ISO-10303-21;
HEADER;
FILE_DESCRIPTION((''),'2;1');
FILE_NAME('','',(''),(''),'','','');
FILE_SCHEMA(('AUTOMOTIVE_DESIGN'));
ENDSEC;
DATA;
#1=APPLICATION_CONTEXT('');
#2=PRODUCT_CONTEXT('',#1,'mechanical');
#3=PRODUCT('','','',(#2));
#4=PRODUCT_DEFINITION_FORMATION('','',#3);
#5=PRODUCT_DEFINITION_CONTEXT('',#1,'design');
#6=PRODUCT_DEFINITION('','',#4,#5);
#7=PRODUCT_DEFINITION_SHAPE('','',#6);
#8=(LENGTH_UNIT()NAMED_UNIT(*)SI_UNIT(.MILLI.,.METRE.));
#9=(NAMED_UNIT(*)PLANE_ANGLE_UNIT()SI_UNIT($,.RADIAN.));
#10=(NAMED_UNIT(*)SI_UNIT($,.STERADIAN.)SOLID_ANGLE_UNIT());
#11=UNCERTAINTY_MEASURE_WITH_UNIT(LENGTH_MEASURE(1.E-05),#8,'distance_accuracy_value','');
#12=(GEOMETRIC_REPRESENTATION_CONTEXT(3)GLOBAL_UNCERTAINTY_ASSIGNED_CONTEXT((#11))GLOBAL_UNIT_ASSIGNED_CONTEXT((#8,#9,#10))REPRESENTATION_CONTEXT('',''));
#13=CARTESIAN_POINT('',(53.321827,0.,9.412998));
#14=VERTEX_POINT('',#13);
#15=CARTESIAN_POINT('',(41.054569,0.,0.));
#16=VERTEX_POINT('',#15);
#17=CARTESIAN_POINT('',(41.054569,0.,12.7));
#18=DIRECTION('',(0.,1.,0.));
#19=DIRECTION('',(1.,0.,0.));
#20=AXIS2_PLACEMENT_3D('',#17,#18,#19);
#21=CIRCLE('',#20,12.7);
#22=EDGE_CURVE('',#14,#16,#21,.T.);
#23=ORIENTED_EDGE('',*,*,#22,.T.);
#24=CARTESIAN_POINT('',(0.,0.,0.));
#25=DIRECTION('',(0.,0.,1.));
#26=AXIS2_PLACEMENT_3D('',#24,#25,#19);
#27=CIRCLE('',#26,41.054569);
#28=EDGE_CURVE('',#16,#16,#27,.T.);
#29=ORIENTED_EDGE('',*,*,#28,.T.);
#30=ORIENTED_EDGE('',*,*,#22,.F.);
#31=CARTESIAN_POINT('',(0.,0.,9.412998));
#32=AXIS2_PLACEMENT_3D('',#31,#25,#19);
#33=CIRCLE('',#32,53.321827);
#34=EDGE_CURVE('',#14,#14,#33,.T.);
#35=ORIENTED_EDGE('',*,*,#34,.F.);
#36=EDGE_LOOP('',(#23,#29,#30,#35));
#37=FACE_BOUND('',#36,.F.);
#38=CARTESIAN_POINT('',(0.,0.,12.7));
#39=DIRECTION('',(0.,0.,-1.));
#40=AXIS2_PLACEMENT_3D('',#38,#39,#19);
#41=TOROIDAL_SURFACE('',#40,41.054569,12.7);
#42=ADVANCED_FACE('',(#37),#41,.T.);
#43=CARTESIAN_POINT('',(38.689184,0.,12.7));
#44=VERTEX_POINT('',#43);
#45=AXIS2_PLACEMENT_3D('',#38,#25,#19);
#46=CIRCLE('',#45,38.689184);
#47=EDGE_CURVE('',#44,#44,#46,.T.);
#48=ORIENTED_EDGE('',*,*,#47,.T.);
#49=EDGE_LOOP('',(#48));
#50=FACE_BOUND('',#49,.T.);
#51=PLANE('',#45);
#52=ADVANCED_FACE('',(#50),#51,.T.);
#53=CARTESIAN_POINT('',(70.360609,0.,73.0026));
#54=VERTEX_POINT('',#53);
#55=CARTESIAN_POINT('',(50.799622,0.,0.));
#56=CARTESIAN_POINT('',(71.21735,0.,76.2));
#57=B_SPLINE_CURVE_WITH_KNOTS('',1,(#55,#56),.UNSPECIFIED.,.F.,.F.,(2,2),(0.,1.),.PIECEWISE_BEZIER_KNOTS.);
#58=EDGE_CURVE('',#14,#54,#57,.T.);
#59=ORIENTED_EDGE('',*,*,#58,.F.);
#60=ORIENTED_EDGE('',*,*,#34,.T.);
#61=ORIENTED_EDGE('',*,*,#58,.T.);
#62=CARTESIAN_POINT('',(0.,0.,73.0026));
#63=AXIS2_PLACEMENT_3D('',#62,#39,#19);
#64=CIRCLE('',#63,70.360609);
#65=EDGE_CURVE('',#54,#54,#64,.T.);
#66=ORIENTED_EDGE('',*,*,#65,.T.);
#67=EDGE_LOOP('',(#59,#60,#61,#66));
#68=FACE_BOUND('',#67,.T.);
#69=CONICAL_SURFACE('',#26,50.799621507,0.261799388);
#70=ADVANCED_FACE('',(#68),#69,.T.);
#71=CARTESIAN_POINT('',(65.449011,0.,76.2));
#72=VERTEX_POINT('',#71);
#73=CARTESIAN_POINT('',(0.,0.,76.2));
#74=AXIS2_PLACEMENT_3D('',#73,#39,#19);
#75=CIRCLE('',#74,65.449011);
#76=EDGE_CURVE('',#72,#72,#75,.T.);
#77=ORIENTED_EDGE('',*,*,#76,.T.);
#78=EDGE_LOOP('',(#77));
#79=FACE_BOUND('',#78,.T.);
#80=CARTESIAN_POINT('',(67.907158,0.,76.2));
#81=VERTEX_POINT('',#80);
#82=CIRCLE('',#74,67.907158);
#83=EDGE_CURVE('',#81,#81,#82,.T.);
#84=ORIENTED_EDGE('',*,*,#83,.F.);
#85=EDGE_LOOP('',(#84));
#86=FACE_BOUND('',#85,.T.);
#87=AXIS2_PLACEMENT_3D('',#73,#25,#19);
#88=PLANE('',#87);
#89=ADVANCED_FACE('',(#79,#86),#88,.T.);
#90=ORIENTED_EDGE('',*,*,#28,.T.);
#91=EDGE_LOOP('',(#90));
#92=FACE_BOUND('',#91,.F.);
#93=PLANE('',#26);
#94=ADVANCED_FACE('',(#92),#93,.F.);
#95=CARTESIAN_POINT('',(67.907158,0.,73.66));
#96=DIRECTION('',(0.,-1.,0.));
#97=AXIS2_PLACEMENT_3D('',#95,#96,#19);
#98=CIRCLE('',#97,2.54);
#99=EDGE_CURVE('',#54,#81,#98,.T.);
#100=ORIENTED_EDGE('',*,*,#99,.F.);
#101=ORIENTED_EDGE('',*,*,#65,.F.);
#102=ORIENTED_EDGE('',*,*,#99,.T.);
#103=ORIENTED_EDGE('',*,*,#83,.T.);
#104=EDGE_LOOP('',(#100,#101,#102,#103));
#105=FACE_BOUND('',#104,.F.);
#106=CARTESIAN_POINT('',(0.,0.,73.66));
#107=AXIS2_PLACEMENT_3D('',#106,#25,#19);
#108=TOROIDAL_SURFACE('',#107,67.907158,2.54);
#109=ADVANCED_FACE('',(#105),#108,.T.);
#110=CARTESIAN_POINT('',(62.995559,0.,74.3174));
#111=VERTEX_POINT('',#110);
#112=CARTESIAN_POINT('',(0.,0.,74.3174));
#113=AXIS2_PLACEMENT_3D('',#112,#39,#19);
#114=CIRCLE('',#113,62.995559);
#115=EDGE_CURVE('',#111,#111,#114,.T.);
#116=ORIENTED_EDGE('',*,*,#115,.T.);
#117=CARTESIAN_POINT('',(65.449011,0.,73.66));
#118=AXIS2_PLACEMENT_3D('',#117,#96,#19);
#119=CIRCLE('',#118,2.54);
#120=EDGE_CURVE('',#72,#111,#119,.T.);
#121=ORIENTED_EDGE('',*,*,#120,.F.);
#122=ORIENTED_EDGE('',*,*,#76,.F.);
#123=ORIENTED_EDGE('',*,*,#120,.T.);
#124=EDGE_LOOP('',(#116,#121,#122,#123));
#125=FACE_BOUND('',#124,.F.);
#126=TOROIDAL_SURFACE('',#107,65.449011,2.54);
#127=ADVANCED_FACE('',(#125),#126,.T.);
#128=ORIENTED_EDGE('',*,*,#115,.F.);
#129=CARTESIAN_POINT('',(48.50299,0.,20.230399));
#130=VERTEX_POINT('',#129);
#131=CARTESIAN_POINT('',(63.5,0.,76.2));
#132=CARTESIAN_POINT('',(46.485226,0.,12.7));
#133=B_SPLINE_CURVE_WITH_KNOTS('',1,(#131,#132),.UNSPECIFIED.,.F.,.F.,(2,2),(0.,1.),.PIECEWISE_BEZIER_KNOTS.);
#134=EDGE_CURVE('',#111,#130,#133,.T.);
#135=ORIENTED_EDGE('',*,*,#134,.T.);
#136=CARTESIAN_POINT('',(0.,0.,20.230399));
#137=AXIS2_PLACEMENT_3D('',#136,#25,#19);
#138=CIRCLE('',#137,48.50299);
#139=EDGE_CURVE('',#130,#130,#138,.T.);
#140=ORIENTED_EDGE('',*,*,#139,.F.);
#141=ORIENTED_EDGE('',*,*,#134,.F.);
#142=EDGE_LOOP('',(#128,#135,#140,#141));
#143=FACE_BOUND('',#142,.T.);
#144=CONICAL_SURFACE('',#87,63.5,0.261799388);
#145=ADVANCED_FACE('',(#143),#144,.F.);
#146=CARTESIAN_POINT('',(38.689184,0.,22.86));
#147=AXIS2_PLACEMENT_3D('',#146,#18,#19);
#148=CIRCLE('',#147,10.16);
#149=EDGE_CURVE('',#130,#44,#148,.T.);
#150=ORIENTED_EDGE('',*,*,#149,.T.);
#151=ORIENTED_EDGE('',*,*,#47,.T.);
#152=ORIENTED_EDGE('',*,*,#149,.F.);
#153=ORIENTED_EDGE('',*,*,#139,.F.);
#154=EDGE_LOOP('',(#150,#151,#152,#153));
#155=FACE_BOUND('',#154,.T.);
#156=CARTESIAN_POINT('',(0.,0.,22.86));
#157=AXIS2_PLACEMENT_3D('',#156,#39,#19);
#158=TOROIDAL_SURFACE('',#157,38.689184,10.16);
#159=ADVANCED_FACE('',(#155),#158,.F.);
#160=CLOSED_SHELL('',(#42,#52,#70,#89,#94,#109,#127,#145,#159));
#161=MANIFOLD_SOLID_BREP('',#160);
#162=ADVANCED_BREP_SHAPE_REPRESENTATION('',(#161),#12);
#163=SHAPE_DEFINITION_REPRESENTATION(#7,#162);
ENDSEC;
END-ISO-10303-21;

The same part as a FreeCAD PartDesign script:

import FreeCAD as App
import Part
import Sketcher
Q = App.Units.Quantity


def edges_at(feature, points):
    """Names of the edges that pass closest to the given points."""
    edges = feature.Shape.Edges
    near = lambda p: min(range(len(edges)), key=lambda i: edges[i].distToShape(Part.Vertex(*p))[0])
    return sorted({f"Edge{near(p) + 1}" for p in points})

doc = App.newDocument("Part")
body = doc.addObject("PartDesign::Body", "Body")

sketch1 = body.newObject("Sketcher::SketchObject", "Sketch")
sketch1.AttachmentSupport = (doc.getObject("XY_Plane"), [""])
sketch1.MapMode = "FlatFace"
sketch1.addGeometry(Part.Circle(App.Vector(0, 0, 0), App.Vector(0, 0, 1), 50.799622), False)
sketch1.addConstraint([
    Sketcher.Constraint("Coincident", 0, 3, -1, 1),
    Sketcher.Constraint("Diameter", 0, Q("101.599243 mm")),
])
pad1 = body.newObject("PartDesign::Pad", "Pad")
pad1.Profile = sketch1
pad1.Length = Q("3 in")
pad1.TaperAngle = 15

sketch2 = body.newObject("Sketcher::SketchObject", "Sketch001")
sketch2.AttachmentSupport = (doc.getObject("XY_Plane"), [""])
sketch2.MapMode = "FlatFace"
sketch2.AttachmentOffset = App.Placement(App.Vector(0, 0, 3 * 25.4), App.Rotation())
sketch2.addGeometry(Part.Circle(App.Vector(0, 0, 0), App.Vector(0, 0, 1), 63.5), False)
sketch2.addConstraint([
    Sketcher.Constraint("Coincident", 0, 3, -1, 1),
    Sketcher.Constraint("Diameter", 0, Q("5 in")),
])
pocket1 = body.newObject("PartDesign::Pocket", "Pocket")
pocket1.Profile = sketch2
pocket1.Length = Q("2.5 in")
pocket1.TaperAngle = -15
doc.recompute()

fillet = body.newObject("PartDesign::Fillet", "Fillet")
fillet.Base = (pocket1, edges_at(pocket1, [(-71.217, 0, 76.2), (-63.5, 0, 76.2)]))
fillet.Radius = Q("0.1 in")
doc.recompute()

fillet2 = body.newObject("PartDesign::Fillet", "Fillet001")
fillet2.Base = (fillet, edges_at(fillet, [(-50.8, 0, 0)]))
fillet2.Radius = Q("0.5 in")
doc.recompute()

fillet3 = body.newObject("PartDesign::Fillet", "Fillet002")
fillet3.Base = (fillet2, edges_at(fillet2, [(-46.485, 0, 12.7)]))
fillet3.Radius = Q("0.4 in")

doc.recompute()
